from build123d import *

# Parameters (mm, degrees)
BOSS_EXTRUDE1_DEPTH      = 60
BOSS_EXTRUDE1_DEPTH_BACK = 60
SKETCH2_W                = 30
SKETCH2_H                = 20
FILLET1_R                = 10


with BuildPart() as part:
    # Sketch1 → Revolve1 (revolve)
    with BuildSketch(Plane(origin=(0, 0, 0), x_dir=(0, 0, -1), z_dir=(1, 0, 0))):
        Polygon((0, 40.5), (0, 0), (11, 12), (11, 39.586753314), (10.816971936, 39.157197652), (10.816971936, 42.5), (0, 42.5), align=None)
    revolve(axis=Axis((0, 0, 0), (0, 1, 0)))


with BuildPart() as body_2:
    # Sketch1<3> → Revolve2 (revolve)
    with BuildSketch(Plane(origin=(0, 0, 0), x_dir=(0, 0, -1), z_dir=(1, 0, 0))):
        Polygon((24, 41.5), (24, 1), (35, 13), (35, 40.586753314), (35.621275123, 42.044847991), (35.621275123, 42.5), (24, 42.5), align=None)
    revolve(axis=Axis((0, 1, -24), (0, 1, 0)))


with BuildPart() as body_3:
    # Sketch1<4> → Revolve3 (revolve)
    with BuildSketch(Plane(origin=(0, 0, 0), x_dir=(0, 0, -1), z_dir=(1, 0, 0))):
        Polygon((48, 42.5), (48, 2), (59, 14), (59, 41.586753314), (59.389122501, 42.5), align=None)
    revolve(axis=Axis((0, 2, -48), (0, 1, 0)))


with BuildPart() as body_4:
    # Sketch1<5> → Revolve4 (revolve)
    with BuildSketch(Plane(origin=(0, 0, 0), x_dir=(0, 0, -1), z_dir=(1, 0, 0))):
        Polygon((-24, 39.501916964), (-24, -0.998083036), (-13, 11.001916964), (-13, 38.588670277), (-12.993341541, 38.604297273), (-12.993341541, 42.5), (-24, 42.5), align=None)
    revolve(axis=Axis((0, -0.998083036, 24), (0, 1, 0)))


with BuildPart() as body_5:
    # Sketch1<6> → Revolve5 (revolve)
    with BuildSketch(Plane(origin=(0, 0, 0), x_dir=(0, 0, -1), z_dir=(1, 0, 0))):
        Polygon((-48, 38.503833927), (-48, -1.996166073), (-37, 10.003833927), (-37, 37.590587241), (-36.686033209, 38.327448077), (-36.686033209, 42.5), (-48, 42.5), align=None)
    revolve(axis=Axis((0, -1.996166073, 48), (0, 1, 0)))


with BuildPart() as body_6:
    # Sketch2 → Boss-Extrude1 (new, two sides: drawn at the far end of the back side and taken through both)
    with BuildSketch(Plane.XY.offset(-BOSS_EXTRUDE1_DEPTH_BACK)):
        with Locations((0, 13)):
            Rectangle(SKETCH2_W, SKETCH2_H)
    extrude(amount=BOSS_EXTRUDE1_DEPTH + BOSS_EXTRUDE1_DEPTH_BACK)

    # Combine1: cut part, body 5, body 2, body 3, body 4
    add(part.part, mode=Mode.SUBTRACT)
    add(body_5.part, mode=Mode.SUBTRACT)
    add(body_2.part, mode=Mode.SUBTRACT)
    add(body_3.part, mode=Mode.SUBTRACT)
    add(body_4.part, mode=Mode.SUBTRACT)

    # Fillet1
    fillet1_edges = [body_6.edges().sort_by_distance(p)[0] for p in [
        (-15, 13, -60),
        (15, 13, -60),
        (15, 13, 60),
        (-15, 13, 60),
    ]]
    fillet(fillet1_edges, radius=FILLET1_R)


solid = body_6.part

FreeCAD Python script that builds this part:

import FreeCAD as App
import Part
import Sketcher
Q = App.Units.Quantity


def edges_at(feature, points):
    """Names of the edges that pass closest to the given points."""
    edges = feature.Shape.Edges
    near = lambda p: min(range(len(edges)), key=lambda i: edges[i].distToShape(Part.Vertex(*p))[0])
    return sorted({f"Edge{near(p) + 1}" for p in points})


def add_polygon(sketch, points):
    """Adds a closed chain of lines whose ends are joined by coincident constraints."""
    first, n = sketch.GeometryCount, len(points)
    for a, b in zip(points, points[1:] + points[:1]):
        sketch.addGeometry(Part.LineSegment(App.Vector(*a, 0), App.Vector(*b, 0)), False)
    for i in range(n):
        sketch.addConstraint(Sketcher.Constraint("Coincident", first + i, 2, first + (i + 1) % n, 1))

doc = App.newDocument("Part")
body = doc.addObject("PartDesign::Body", "Body")

# Sketch on YZ plane
sketch1 = body.newObject("Sketcher::SketchObject", "Sketch")
sketch1.AttachmentSupport = (doc.getObject("YZ_Plane"), [""])
sketch1.MapMode = "FlatFace"
add_polygon(sketch1, [(0, 0), (12, -11), (39.59, -11), (39.16, -10.82), (42.5, -10.82), (42.5, 0)])  # lines 0-5
sketch1.addConstraint(Sketcher.Constraint("Horizontal", 1))
sketch1.addConstraint(Sketcher.Constraint("Horizontal", 3))
sketch1.addConstraint(Sketcher.Constraint("Vertical", 4))
sketch1.addConstraint(Sketcher.Constraint("Horizontal", 5))
sketch1.addConstraint(Sketcher.Constraint("Coincident", 5, 2, -1, 1))
sketch1.addConstraint(Sketcher.Constraint("DistanceX", 5, 2, 5, 1, Q("42.5 mm")))
sketch1.addConstraint(Sketcher.Constraint("DistanceX", -1, 1, 0, 2, Q("12 mm")))
sketch1.addConstraint(Sketcher.Constraint("DistanceY", 0, 2, -1, 1, Q("11 mm")))
sketch1.addConstraint(Sketcher.Constraint("DistanceY", 4, 1, 4, 2, Q("10.816972 mm")))
sketch1.addConstraint(Sketcher.Constraint("DistanceX", 1, 1, 1, 2, Q("27.586753 mm")))
sketch1.addConstraint(Sketcher.Constraint("DistanceX", 3, 1, 3, 2, Q("3.342802 mm")))
revolution = body.newObject("PartDesign::Revolution", "Revolution")
revolution.Profile = sketch1
revolution.ReferenceAxis = (sketch1, ["H_Axis"])
revolution.Angle = 360
body2 = doc.addObject("PartDesign::Body", "Body001")

# Sketch on YZ plane
sketch2 = body2.newObject("Sketcher::SketchObject", "Sketch001")
sketch2.AttachmentSupport = (doc.getObject("YZ_Plane001"), [""])
sketch2.MapMode = "FlatFace"
add_polygon(sketch2, [(1, -24), (13, -35), (40.59, -35), (42.04, -35.62), (42.5, -35.62), (42.5, -24)])  # lines 0-5
sketch2.addGeometry(Part.LineSegment(App.Vector(1, -24, 0), App.Vector(42.5, -24, 0)), True)  # axis
sketch2.addConstraint(Sketcher.Constraint("Horizontal", 1))
sketch2.addConstraint(Sketcher.Constraint("Horizontal", 3))
sketch2.addConstraint(Sketcher.Constraint("Vertical", 4))
sketch2.addConstraint(Sketcher.Constraint("Horizontal", 5))
sketch2.addConstraint(Sketcher.Constraint("Horizontal", 6))
sketch2.addConstraint(Sketcher.Constraint("Coincident", 6, 1, 5, 2))
sketch2.addConstraint(Sketcher.Constraint("Vertical", 3, 2, 6, 2))
sketch2.addConstraint(Sketcher.Constraint("DistanceX", 5, 2, 5, 1, Q("41.5 mm")))
sketch2.addConstraint(Sketcher.Constraint("DistanceX", -1, 1, 0, 2, Q("13 mm")))
sketch2.addConstraint(Sketcher.Constraint("DistanceY", 0, 2, -1, 1, Q("35 mm")))
sketch2.addConstraint(Sketcher.Constraint("DistanceY", 4, 2, -1, 1, Q("24 mm")))
sketch2.addConstraint(Sketcher.Constraint("DistanceX", -1, 1, 5, 2, Q("1 mm")))
sketch2.addConstraint(Sketcher.Constraint("DistanceX", 1, 1, 1, 2, Q("27.586753 mm")))
sketch2.addConstraint(Sketcher.Constraint("DistanceX", 3, 1, 3, 2, Q("0.455152 mm")))
sketch2.addConstraint(Sketcher.Constraint("DistanceY", 4, 1, 4, 2, Q("11.621275 mm")))
revolution2 = body2.newObject("PartDesign::Revolution", "Revolution001")
revolution2.Profile = sketch2
revolution2.ReferenceAxis = (sketch2, ["Axis0"])
revolution2.Angle = 360
body3 = doc.addObject("PartDesign::Body", "Body002")

# Sketch on YZ plane
sketch3 = body3.newObject("Sketcher::SketchObject", "Sketch002")
sketch3.AttachmentSupport = (doc.getObject("YZ_Plane002"), [""])
sketch3.MapMode = "FlatFace"
add_polygon(sketch3, [(42.5, -48), (2, -48), (14, -59), (41.6, -59), (42.5, -59.4)])  # lines 0-4
sketch3.addGeometry(Part.LineSegment(App.Vector(2, -48, 0), App.Vector(42.5, -48, 0)), True)  # axis
sketch3.addConstraint(Sketcher.Constraint("Horizontal", 0))
sketch3.addConstraint(Sketcher.Constraint("Horizontal", 2))
sketch3.addConstraint(Sketcher.Constraint("Vertical", 4))
sketch3.addConstraint(Sketcher.Constraint("Horizontal", 5))
sketch3.addConstraint(Sketcher.Constraint("Coincident", 5, 1, 0, 2))
sketch3.addConstraint(Sketcher.Constraint("Vertical", 3, 2, 5, 2))
sketch3.addConstraint(Sketcher.Constraint("DistanceX", 0, 2, 0, 1, Q("40.5 mm")))
sketch3.addConstraint(Sketcher.Constraint("DistanceX", -1, 1, 0, 2, Q("2 mm")))
sketch3.addConstraint(Sketcher.Constraint("DistanceY", 0, 2, -1, 1, Q("48 mm")))
sketch3.addConstraint(Sketcher.Constraint("DistanceX", -1, 1, 1, 2, Q("14 mm")))
sketch3.addConstraint(Sketcher.Constraint("DistanceY", 1, 2, -1, 1, Q("59 mm")))
sketch3.addConstraint(Sketcher.Constraint("Distance", 3, Q("0.992691 mm")))
sketch3.addConstraint(Sketcher.Constraint("DistanceX", 2, 1, 2, 2, Q("27.586753 mm")))
revolution3 = body3.newObject("PartDesign::Revolution", "Revolution002")
revolution3.Profile = sketch3
revolution3.ReferenceAxis = (sketch3, ["Axis0"])
revolution3.Angle = 360
body4 = doc.addObject("PartDesign::Body", "Body003")

# Sketch on YZ plane
sketch4 = body4.newObject("Sketcher::SketchObject", "Sketch003")
sketch4.AttachmentSupport = (doc.getObject("YZ_Plane003"), [""])
sketch4.MapMode = "FlatFace"
add_polygon(sketch4, [(-0.998, 24), (11.002, 13), (38.589, 13), (38.604, 12.993), (42.5, 12.993), (42.5, 24)])  # lines 0-5
sketch4.addGeometry(Part.LineSegment(App.Vector(-0.998, 24, 0), App.Vector(42.5, 24, 0)), True)  # axis
sketch4.addConstraint(Sketcher.Constraint("Horizontal", 1))
sketch4.addConstraint(Sketcher.Constraint("Horizontal", 3))
sketch4.addConstraint(Sketcher.Constraint("Vertical", 4))
sketch4.addConstraint(Sketcher.Constraint("Horizontal", 5))
sketch4.addConstraint(Sketcher.Constraint("Horizontal", 6))
sketch4.addConstraint(Sketcher.Constraint("Coincident", 6, 1, 5, 2))
sketch4.addConstraint(Sketcher.Constraint("Vertical", 3, 2, 6, 2))
sketch4.addConstraint(Sketcher.Constraint("DistanceY", -1, 1, 0, 2, Q("13 mm")))
sketch4.addConstraint(Sketcher.Constraint("DistanceY", -1, 1, 4, 2, Q("24 mm")))
sketch4.addConstraint(Sketcher.Constraint("DistanceX", 5, 2, 0, 2, Q("12 mm")))
sketch4.addConstraint(Sketcher.Constraint("DistanceX", -1, 1, 3, 2, Q("42.5 mm")))
sketch4.addConstraint(Sketcher.Constraint("DistanceY", 4, 1, 4, 2, Q("11.006658 mm")))
sketch4.addConstraint(Sketcher.Constraint("DistanceX", 1, 1, 1, 2, Q("27.586753 mm")))
sketch4.addConstraint(Sketcher.Constraint("DistanceX", 3, 1, 3, 2, Q("3.895703 mm")))
sketch4.addConstraint(Sketcher.Constraint("DistanceX", 5, 2, 5, 1, Q("43.498083 mm")))
revolution4 = body4.newObject("PartDesign::Revolution", "Revolution003")
revolution4.Profile = sketch4
revolution4.ReferenceAxis = (sketch4, ["Axis0"])
revolution4.Angle = 360
body5 = doc.addObject("PartDesign::Body", "Body004")

# Sketch on YZ plane
sketch5 = body5.newObject("Sketcher::SketchObject", "Sketch004")
sketch5.AttachmentSupport = (doc.getObject("YZ_Plane004"), [""])
sketch5.MapMode = "FlatFace"
add_polygon(sketch5, [(-2, 48), (10, 37), (37.6, 37), (38.3, 36.7), (42.5, 36.7), (42.5, 48)])  # lines 0-5
sketch5.addGeometry(Part.LineSegment(App.Vector(-2, 48, 0), App.Vector(42.5, 48, 0)), True)  # axis
sketch5.addConstraint(Sketcher.Constraint("Horizontal", 1))
sketch5.addConstraint(Sketcher.Constraint("Horizontal", 3))
sketch5.addConstraint(Sketcher.Constraint("Vertical", 4))
sketch5.addConstraint(Sketcher.Constraint("Horizontal", 5))
sketch5.addConstraint(Sketcher.Constraint("Horizontal", 6))
sketch5.addConstraint(Sketcher.Constraint("Coincident", 6, 1, 5, 2))
sketch5.addConstraint(Sketcher.Constraint("Vertical", 3, 2, 6, 2))
sketch5.addConstraint(Sketcher.Constraint("DistanceY", -1, 1, 0, 2, Q("37 mm")))
sketch5.addConstraint(Sketcher.Constraint("DistanceY", -1, 1, 4, 2, Q("48 mm")))
sketch5.addConstraint(Sketcher.Constraint("DistanceX", 5, 2, 0, 2, Q("12 mm")))
sketch5.addConstraint(Sketcher.Constraint("DistanceX", -1, 1, 3, 2, Q("42.5 mm")))
sketch5.addConstraint(Sketcher.Constraint("DistanceX", 3, 1, 3, 2, Q("4.172552 mm")))
sketch5.addConstraint(Sketcher.Constraint("Distance", 2, Q("0.800961 mm")))
sketch5.addConstraint(Sketcher.Constraint("DistanceX", 1, 1, 1, 2, Q("27.586753 mm")))
sketch5.addConstraint(Sketcher.Constraint("DistanceX", 5, 2, 5, 1, Q("44.496166 mm")))
revolution5 = body5.newObject("PartDesign::Revolution", "Revolution004")
revolution5.Profile = sketch5
revolution5.ReferenceAxis = (sketch5, ["Axis0"])
revolution5.Angle = 360
body6 = doc.addObject("PartDesign::Body", "Body005")

# Sketch on XY plane
sketch6 = body6.newObject("Sketcher::SketchObject", "Sketch005")
sketch6.AttachmentSupport = (doc.getObject("XY_Plane005"), [""])
sketch6.MapMode = "FlatFace"
add_polygon(sketch6, [(-15, 23), (-15, 3), (15, 3), (15, 23)])  # lines 0-3
sketch6.addConstraint(Sketcher.Constraint("Vertical", 0))
sketch6.addConstraint(Sketcher.Constraint("Horizontal", 1))
sketch6.addConstraint(Sketcher.Constraint("Vertical", 2))
sketch6.addConstraint(Sketcher.Constraint("Horizontal", 3))
sketch6.addConstraint(Sketcher.Constraint("DistanceX", 1, 1, 1, 2, Q("30 mm")))
sketch6.addConstraint(Sketcher.Constraint("DistanceY", 0, 2, 0, 1, Q("20 mm")))
sketch6.addConstraint(Sketcher.Constraint("DistanceX", 0, 2, -1, 1, Q("15 mm")))
sketch6.addConstraint(Sketcher.Constraint("DistanceY", -1, 1, 0, 2, Q("3 mm")))
pad1 = body6.newObject("PartDesign::Pad", "Pad")
pad1.Profile = sketch6
pad1.Type = "TwoLengths"
pad1.Length = 60
pad1.Length2 = 60
doc.recompute()

boolean = body6.newObject("PartDesign::Boolean", "Boolean")
boolean.Type = "Cut"
boolean.addObjects([body])
doc.recompute()

boolean2 = body6.newObject("PartDesign::Boolean", "Boolean001")
boolean2.Type = "Cut"
boolean2.addObjects([body5])
doc.recompute()

boolean3 = body6.newObject("PartDesign::Boolean", "Boolean002")
boolean3.Type = "Cut"
boolean3.addObjects([body2])
doc.recompute()

boolean4 = body6.newObject("PartDesign::Boolean", "Boolean003")
boolean4.Type = "Cut"
boolean4.addObjects([body3])
doc.recompute()

boolean5 = body6.newObject("PartDesign::Boolean", "Boolean004")
boolean5.Type = "Cut"
boolean5.addObjects([body4])
doc.recompute()

fillet = body6.newObject("PartDesign::Fillet", "Fillet")
fillet.Base = (boolean5, edges_at(boolean5, [
    (-15, 13, -60),
    (15, 13, -60),
    (15, 13, 60),
    (-15, 13, 60),
]))
fillet.Radius = 10

doc.recompute()
